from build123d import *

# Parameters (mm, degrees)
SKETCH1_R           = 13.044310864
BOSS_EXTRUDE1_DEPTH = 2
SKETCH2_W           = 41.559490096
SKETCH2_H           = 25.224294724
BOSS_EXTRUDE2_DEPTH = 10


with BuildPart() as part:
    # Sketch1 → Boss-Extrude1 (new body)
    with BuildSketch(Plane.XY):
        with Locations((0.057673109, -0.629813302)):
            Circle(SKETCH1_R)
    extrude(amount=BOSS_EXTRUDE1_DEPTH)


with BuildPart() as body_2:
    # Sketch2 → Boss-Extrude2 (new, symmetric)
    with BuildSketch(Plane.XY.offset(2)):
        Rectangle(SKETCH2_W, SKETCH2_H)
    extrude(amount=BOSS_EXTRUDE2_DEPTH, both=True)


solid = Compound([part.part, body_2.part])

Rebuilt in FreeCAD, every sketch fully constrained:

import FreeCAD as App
import Part
import Sketcher
from FreeCAD import Vector
Q = App.Units.Quantity


def add_polygon(sketch, points):
    """Adds a closed chain of lines whose ends are joined by coincident constraints."""
    first, n = sketch.GeometryCount, len(points)
    for a, b in zip(points, points[1:] + points[:1]):
        sketch.addGeometry(Part.LineSegment(App.Vector(*a, 0), App.Vector(*b, 0)), False)
    for i in range(n):
        sketch.addConstraint(Sketcher.Constraint("Coincident", first + i, 2, first + (i + 1) % n, 1))

doc = App.newDocument("Part")
body = doc.addObject("PartDesign::Body", "Body")

sketch1 = body.newObject("Sketcher::SketchObject", "Sketch")
sketch1.AttachmentSupport = (doc.getObject("XY_Plane"), [""])
sketch1.MapMode = "FlatFace"
sketch1.addGeometry(Part.Circle(Vector(0, -1, 0), Vector(0, 0, 1), 13), False)
sketch1.addConstraint([
    Sketcher.Constraint("Diameter", 0, Q("26.088622 mm")),
    Sketcher.Constraint("DistanceX", -1, 1, 0, 3, Q("0.057673 mm")),
    Sketcher.Constraint("DistanceY", 0, 3, -1, 1, Q("0.629813 mm")),
])
pad1 = body.newObject("PartDesign::Pad", "Pad")
pad1.Profile = sketch1
pad1.Length = 2
body2 = doc.addObject("PartDesign::Body", "Body001")

sketch2 = body2.newObject("Sketcher::SketchObject", "Sketch001")
sketch2.AttachmentSupport = (doc.getObject("XY_Plane001"), [""])
sketch2.MapMode = "FlatFace"
sketch2.AttachmentOffset = App.Placement(Vector(0, 0, 2), App.Rotation())
add_polygon(sketch2, [(-21, 13), (-21, -13), (21, -13), (21, 13)])
sketch2.addConstraint([
    Sketcher.Constraint("Vertical", 0),
    Sketcher.Constraint("Horizontal", 1),
    Sketcher.Constraint("Vertical", 2),
    Sketcher.Constraint("Horizontal", 3),
    Sketcher.Constraint("Symmetric", 0, 2, 2, 2, -1, 1),
    Sketcher.Constraint("DistanceX", 1, 1, 1, 2, Q("41.55949 mm")),
    Sketcher.Constraint("DistanceY", 0, 2, 0, 1, Q("25.224295 mm")),
])
pad2 = body2.newObject("PartDesign::Pad", "Pad001")
pad2.Profile = sketch2
pad2.Length = 20
pad2.Midplane = True

doc.recompute()
